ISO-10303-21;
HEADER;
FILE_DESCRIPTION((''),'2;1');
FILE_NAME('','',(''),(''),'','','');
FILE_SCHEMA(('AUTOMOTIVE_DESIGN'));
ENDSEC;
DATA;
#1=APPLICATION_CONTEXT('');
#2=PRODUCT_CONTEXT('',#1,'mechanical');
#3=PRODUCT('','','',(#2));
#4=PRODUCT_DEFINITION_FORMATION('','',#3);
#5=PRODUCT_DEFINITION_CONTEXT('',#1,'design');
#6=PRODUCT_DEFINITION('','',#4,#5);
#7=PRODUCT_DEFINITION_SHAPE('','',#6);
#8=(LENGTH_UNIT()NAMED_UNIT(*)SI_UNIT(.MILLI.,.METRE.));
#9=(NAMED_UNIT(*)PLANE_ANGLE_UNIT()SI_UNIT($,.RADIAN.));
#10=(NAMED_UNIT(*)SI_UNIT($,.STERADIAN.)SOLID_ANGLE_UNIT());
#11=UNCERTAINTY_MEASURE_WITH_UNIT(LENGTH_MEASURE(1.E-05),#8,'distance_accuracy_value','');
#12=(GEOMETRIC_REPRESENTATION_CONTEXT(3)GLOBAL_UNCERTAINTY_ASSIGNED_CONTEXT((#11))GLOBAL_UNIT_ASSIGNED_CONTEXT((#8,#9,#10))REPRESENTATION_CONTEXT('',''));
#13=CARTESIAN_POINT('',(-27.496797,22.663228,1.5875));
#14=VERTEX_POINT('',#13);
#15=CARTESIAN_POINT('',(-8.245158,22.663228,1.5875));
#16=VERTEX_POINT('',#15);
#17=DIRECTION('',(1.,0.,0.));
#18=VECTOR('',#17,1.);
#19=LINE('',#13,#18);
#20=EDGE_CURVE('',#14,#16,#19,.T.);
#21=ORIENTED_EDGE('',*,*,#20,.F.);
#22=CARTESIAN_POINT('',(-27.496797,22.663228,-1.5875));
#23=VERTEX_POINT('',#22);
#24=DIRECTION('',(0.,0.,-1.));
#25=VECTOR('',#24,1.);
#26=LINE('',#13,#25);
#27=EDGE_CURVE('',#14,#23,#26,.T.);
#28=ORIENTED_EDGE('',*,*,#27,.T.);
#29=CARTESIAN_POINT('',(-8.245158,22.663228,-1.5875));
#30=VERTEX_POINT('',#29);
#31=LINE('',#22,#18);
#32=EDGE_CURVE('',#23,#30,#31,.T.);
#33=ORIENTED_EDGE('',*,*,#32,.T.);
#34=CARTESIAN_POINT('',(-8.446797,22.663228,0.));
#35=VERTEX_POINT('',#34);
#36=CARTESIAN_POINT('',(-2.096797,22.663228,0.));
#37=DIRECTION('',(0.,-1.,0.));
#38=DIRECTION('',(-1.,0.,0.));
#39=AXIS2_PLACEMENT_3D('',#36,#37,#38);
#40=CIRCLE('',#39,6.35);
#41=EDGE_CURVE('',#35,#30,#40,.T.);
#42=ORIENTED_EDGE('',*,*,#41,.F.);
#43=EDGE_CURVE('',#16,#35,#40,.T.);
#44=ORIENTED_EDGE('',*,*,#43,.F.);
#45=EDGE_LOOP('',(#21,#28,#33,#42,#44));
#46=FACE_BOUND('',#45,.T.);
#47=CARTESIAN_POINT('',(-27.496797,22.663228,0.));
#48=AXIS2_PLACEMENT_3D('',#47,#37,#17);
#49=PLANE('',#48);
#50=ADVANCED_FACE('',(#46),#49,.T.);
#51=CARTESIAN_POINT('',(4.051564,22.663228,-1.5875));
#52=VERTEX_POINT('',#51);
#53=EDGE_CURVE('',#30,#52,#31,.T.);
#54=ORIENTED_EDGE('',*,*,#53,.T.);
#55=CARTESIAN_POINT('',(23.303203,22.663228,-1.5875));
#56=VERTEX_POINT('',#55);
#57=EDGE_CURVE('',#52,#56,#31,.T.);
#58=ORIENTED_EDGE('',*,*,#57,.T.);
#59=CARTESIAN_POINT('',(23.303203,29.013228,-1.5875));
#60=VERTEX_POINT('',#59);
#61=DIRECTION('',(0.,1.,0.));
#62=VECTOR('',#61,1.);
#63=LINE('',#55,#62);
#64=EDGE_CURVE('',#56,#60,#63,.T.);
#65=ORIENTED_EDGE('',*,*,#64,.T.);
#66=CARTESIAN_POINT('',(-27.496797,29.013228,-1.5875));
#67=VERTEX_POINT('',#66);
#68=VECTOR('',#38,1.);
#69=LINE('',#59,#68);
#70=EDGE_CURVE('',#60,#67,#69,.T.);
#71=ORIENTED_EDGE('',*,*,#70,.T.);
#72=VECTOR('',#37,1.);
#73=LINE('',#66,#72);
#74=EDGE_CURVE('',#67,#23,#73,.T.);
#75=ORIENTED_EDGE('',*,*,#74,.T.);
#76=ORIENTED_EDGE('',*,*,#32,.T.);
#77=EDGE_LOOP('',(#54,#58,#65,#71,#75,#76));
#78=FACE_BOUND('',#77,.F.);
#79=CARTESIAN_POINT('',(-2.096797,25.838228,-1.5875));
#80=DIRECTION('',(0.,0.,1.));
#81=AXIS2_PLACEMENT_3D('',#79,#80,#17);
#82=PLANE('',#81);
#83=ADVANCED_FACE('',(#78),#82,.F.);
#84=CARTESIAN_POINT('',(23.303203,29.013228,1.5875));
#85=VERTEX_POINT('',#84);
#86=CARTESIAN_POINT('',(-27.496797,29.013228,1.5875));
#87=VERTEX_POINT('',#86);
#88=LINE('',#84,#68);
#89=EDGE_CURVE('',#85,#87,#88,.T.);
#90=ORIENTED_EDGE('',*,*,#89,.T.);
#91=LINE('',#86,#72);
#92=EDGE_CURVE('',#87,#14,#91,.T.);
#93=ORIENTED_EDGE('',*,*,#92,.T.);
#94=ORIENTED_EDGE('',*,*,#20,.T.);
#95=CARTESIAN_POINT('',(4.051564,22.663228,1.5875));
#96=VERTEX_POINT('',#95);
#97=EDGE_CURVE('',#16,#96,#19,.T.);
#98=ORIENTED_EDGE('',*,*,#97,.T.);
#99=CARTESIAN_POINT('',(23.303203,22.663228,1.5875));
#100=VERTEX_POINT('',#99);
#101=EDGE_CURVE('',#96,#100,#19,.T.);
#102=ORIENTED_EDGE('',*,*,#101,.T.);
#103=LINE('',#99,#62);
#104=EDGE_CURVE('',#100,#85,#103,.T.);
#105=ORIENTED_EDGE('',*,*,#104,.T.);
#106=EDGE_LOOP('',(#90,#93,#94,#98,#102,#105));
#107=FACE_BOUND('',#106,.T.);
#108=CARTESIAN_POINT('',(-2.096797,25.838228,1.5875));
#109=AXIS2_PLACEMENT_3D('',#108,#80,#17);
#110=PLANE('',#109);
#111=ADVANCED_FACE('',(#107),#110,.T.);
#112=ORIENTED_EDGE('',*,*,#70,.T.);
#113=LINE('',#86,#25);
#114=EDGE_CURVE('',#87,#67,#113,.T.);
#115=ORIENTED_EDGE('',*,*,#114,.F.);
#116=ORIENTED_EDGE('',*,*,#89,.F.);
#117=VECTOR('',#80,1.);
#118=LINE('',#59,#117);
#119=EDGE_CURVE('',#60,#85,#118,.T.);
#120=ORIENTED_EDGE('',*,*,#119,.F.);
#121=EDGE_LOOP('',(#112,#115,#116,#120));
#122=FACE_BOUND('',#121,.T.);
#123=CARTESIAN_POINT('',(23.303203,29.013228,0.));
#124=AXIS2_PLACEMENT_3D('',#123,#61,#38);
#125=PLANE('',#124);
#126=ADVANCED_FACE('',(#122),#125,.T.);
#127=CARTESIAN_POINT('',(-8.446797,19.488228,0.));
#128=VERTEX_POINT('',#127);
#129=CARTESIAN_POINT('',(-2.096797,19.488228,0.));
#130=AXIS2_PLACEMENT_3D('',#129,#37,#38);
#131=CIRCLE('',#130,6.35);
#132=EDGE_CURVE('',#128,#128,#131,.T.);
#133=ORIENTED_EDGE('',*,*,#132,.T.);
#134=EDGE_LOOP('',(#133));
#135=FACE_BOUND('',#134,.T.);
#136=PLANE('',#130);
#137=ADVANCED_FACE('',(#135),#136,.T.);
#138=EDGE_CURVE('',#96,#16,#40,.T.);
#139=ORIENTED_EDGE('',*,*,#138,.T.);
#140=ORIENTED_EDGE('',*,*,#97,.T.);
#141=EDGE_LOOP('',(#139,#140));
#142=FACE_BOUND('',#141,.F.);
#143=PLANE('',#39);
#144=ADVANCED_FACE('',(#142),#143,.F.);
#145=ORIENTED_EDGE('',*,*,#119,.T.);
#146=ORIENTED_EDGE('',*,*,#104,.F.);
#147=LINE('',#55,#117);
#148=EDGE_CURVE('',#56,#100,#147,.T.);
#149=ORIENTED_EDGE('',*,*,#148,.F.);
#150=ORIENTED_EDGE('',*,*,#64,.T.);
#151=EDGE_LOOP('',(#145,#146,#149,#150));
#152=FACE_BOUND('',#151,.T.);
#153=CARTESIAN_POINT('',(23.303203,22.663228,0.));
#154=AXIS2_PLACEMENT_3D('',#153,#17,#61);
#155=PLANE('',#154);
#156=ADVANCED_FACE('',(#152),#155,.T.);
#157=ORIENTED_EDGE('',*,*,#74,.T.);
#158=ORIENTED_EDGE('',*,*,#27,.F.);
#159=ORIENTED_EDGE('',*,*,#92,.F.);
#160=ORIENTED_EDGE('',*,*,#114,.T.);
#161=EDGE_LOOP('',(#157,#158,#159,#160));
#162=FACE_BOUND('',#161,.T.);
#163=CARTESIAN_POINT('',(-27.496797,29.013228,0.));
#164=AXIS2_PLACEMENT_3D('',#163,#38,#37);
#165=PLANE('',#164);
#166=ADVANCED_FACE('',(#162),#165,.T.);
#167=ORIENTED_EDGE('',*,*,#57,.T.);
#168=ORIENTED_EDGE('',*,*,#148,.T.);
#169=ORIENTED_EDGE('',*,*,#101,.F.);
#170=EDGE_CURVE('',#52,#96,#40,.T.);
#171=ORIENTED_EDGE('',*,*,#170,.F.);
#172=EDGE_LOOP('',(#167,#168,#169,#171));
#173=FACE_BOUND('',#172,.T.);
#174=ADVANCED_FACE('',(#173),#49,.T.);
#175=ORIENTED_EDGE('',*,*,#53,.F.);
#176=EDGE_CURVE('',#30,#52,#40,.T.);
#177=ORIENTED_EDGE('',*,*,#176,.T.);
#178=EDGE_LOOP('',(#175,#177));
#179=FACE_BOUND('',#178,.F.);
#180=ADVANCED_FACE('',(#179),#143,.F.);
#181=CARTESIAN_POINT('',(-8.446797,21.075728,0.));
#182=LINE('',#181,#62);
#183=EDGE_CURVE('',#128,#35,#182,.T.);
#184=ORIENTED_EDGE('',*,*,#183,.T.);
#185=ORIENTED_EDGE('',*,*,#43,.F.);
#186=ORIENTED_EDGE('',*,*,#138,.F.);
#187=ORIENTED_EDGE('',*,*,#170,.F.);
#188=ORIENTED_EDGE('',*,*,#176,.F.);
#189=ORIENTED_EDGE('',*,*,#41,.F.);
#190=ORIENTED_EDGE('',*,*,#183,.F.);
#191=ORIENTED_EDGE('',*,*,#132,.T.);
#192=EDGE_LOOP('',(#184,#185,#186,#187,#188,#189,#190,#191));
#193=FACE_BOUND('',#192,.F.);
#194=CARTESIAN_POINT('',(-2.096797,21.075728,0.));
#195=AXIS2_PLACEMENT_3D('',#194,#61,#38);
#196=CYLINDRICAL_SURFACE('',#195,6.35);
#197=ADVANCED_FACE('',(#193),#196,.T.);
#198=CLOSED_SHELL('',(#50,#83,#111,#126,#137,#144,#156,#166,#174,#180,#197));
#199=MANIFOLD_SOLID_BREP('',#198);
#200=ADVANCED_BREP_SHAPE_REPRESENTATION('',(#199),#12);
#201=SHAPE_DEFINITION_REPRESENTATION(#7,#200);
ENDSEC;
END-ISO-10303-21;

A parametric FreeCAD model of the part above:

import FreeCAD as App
import Part
import Sketcher
Q = App.Units.Quantity

doc = App.newDocument("Part")
params = doc.addObject("Spreadsheet::Sheet", "Params")
for row, (alias, value) in enumerate([
    ("sketch1_width", "0.25 in"),
    ("sketch1_height", "0.125 in"),
    ("revolution_angle", "360 deg"),
    ("sketch2_width", "2 in"),
    ("sketch2_height", "0.25 in"),
    ("pad1_length", "0.125 in"),
], start=1):
    params.set(f"A{row}", alias)
    params.set(f"B{row}", "=" + value)
    params.setAlias(f"B{row}", alias)

body = doc.addObject("PartDesign::Body", "Body")

# Sketch on XY plane
sketch1 = doc.addObject("Sketcher::SketchObject", "Sketch")
body.addObject(sketch1)
sketch1.AttachmentSupport = (doc.XY_Plane, [""])
sketch1.MapMode = "FlatFace"
sketch1.addGeometry([
    Part.LineSegment(App.Vector(-8.4, 22.7, 0), App.Vector(-8.4, 19.5, 0)),
    Part.LineSegment(App.Vector(-8.4, 19.5, 0), App.Vector(-2.1, 19.5, 0)),
    Part.LineSegment(App.Vector(-2.1, 19.5, 0), App.Vector(-2.1, 22.7, 0)),
    Part.LineSegment(App.Vector(-2.1, 22.7, 0), App.Vector(-8.4, 22.7, 0)),
], False)
sketch1.addGeometry(Part.LineSegment(App.Vector(-2.1, 22.7, 0), App.Vector(-2.1, 19.5, 0)), True)  # axis
sketch1.addConstraint([
    Sketcher.Constraint("Coincident", 0, 2, 1, 1),
    Sketcher.Constraint("Coincident", 1, 2, 2, 1),
    Sketcher.Constraint("Coincident", 2, 2, 3, 1),
    Sketcher.Constraint("Coincident", 3, 2, 0, 1),
    Sketcher.Constraint("Vertical", 0),
    Sketcher.Constraint("Horizontal", 1),
    Sketcher.Constraint("Vertical", 2),
    Sketcher.Constraint("Horizontal", 3),
    Sketcher.Constraint("Vertical", 4),
    Sketcher.Constraint("Coincident", 4, 1, 2, 2),
    Sketcher.Constraint("Horizontal", 0, 2, 4, 2),
    Sketcher.Constraint("DistanceX", 1, 1, 1, 2, Q("0.25 in")),
    Sketcher.Constraint("DistanceY", 0, 2, 0, 1, Q("0.125 in")),
    Sketcher.Constraint("DistanceY", -1, 1, 2, 2, 22.663228),
    Sketcher.Constraint("DistanceX", 0, 2, -1, 1, 8.446797),
])
sketch1.setExpression("Constraints[11]", "Params.sketch1_width")
sketch1.setExpression("Constraints[12]", "Params.sketch1_height")
revolution = doc.addObject("PartDesign::Revolution", "Revolution")
body.addObject(revolution)
revolution.Profile = sketch1
revolution.ReferenceAxis = (sketch1, ["Axis0"])
revolution.setExpression("Angle", "Params.revolution_angle")

# Sketch on XY plane
sketch2 = doc.addObject("Sketcher::SketchObject", "Sketch001")
body.addObject(sketch2)
sketch2.AttachmentSupport = (doc.XY_Plane, [""])
sketch2.MapMode = "FlatFace"
sketch2.addGeometry([
    Part.LineSegment(App.Vector(-27, 23, 0), App.Vector(23, 23, 0)),
    Part.LineSegment(App.Vector(23, 23, 0), App.Vector(23, 29, 0)),
    Part.LineSegment(App.Vector(23, 29, 0), App.Vector(-27, 29, 0)),
    Part.LineSegment(App.Vector(-27, 29, 0), App.Vector(-27, 23, 0)),
], False)
sketch2.addConstraint([
    Sketcher.Constraint("Coincident", 0, 2, 1, 1),
    Sketcher.Constraint("Coincident", 1, 2, 2, 1),
    Sketcher.Constraint("Coincident", 2, 2, 3, 1),
    Sketcher.Constraint("Coincident", 3, 2, 0, 1),
    Sketcher.Constraint("Horizontal", 0),
    Sketcher.Constraint("Vertical", 1),
    Sketcher.Constraint("Horizontal", 2),
    Sketcher.Constraint("Vertical", 3),
    Sketcher.Constraint("DistanceX", 0, 1, 0, 2, Q("2 in")),
    Sketcher.Constraint("DistanceY", 1, 1, 1, 2, Q("0.25 in")),
    Sketcher.Constraint("DistanceY", -1, 1, 0, 2, 22.663228),
    Sketcher.Constraint("DistanceX", -1, 1, 0, 2, 23.303203),
])
sketch2.setExpression("Constraints[8]", "Params.sketch2_width")
sketch2.setExpression("Constraints[9]", "Params.sketch2_height")
pad1 = doc.addObject("PartDesign::Pad", "Pad")
body.addObject(pad1)
pad1.Profile = sketch2
pad1.setExpression("Length", "Params.pad1_length")
pad1.Midplane = True

doc.recompute()
